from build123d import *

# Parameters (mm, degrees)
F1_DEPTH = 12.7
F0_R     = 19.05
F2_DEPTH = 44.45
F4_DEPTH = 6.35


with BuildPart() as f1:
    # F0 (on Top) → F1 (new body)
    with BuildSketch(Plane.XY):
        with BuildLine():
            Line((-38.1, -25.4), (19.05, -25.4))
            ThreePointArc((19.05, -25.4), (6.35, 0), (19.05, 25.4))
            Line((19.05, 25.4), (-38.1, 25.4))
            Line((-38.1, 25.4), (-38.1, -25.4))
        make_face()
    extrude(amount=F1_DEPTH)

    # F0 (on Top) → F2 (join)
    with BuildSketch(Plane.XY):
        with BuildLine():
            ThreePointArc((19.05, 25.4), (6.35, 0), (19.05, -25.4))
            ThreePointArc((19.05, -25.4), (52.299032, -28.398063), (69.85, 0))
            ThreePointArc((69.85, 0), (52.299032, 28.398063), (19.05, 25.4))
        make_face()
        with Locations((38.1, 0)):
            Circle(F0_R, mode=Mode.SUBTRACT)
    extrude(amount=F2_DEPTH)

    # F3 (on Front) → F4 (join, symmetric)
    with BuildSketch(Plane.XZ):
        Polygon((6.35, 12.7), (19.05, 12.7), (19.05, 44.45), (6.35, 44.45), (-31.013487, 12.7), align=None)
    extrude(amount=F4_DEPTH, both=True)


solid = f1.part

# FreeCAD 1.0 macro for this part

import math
import FreeCAD as App
import Part
import Sketcher

V = App.Vector
Q = App.Units.Quantity

doc = App.newDocument("Part")
body = doc.addObject("PartDesign::Body", "Body")

sketch1 = body.newObject("Sketcher::SketchObject", "Sketch")
sketch1.AttachmentSupport = (doc.getObject("XY_Plane"), [""])
sketch1.MapMode = "FlatFace"
sketch1.addGeometry([
    Part.LineSegment(V(-38, -25, 0), V(19, -25, 0)),
    Part.ArcOfCircle(Part.Circle(V(38, 0, 0), V(0, 0, 1), 32), math.radians(127), math.radians(233)),
    Part.LineSegment(V(19, 25, 0), V(-38, 25, 0)),
    Part.LineSegment(V(-38, 25, 0), V(-38, -25, 0)),
], False)
sketch1.addConstraint([
    Sketcher.Constraint("Coincident", 0, 2, 1, 2),
    Sketcher.Constraint("Coincident", 1, 1, 2, 1),
    Sketcher.Constraint("Coincident", 2, 2, 3, 1),
    Sketcher.Constraint("Coincident", 3, 2, 0, 1),
    Sketcher.Constraint("Horizontal", 0),
    Sketcher.Constraint("Horizontal", 2),
    Sketcher.Constraint("Vertical", 3),
    Sketcher.Constraint("Symmetric", 0, 2, 1, 1, -1),
    Sketcher.Constraint("DistanceY", 3, 2, 3, 1, Q("2 in")),
    Sketcher.Constraint("Radius", 1, Q("1.25 in")),
    Sketcher.Constraint("DistanceX", 2, 2, 1, 3, Q("3 in")),
    Sketcher.Constraint("DistanceX", -1, 1, 1, 3, Q("1.5 in")),
])
pad1 = body.newObject("PartDesign::Pad", "Pad")
pad1.Profile = sketch1
pad1.Length = Q("0.5 in")

sketch2 = body.newObject("Sketcher::SketchObject", "Sketch001")
sketch2.AttachmentSupport = (doc.getObject("XY_Plane"), [""])
sketch2.MapMode = "FlatFace"
sketch2.addGeometry([
    Part.ArcOfCircle(Part.Circle(V(38, 0, 0), V(0, 0, 1), 32), math.radians(127), math.radians(233)),
    Part.ArcOfCircle(Part.Circle(V(38, 0, 0), V(0, 0, 1), 32), math.radians(-127), math.radians(0)),
    Part.ArcOfCircle(Part.Circle(V(38, 0, 0), V(0, 0, 1), 32), math.radians(0), math.radians(127)),
    Part.Circle(V(38, 0, 0), V(0, 0, 1), 19),
], False)
sketch2.addConstraint([
    Sketcher.Constraint("Tangent", 0, 2, 1, 1),
    Sketcher.Constraint("Tangent", 1, 2, 2, 1),
    Sketcher.Constraint("Tangent", 2, 2, 0, 1),
    Sketcher.Constraint("Coincident", 3, 3, 0, 3),
    Sketcher.Constraint("Symmetric", 0, 2, 2, 2, -1),
    Sketcher.Constraint("PointOnObject", 1, 2, -1),
    Sketcher.Constraint("Diameter", 3, Q("1.5 in")),
    Sketcher.Constraint("Radius", 0, Q("1.25 in")),
    Sketcher.Constraint("DistanceY", 0, 2, -1, 1, Q("1 in")),
    Sketcher.Constraint("DistanceX", -1, 1, 0, 3, Q("1.5 in")),
])
pad2 = body.newObject("PartDesign::Pad", "Pad001")
pad2.Profile = sketch2
pad2.Length = Q("1.75 in")

sketch3 = body.newObject("Sketcher::SketchObject", "Sketch002")
sketch3.AttachmentSupport = (doc.getObject("XZ_Plane"), [""])
sketch3.MapMode = "FlatFace"
sketch3.addGeometry([
    Part.LineSegment(V(19, 13, 0), V(19, 44, 0)),
    Part.LineSegment(V(19, 44, 0), V(6, 44, 0)),
    Part.LineSegment(V(6, 44, 0), V(-31, 13, 0)),
    Part.LineSegment(V(-31, 13, 0), V(19, 13, 0)),
], False)
sketch3.addConstraint([
    Sketcher.Constraint("Coincident", 0, 2, 1, 1),
    Sketcher.Constraint("Coincident", 1, 2, 2, 1),
    Sketcher.Constraint("Coincident", 2, 2, 3, 1),
    Sketcher.Constraint("Coincident", 3, 2, 0, 1),
    Sketcher.Constraint("Vertical", 0),
    Sketcher.Constraint("Horizontal", 1),
    Sketcher.Constraint("Horizontal", 3),
    Sketcher.Constraint("DistanceX", 1, 2, 1, 1, Q("0.5 in")),
    Sketcher.Constraint("DistanceY", 0, 1, 0, 2, Q("1.25 in")),
    Sketcher.Constraint("DistanceY", -1, 1, 2, 2, Q("0.5 in")),
    Sketcher.Constraint("DistanceX", -1, 1, 0, 2, Q("0.75 in")),
    Sketcher.Constraint("DistanceX", 3, 1, 3, 2, 50.063487),
])
pad3 = body.newObject("PartDesign::Pad", "Pad002")
pad3.Profile = sketch3
pad3.Length = Q("0.5 in")
pad3.Midplane = True

doc.recompute()
